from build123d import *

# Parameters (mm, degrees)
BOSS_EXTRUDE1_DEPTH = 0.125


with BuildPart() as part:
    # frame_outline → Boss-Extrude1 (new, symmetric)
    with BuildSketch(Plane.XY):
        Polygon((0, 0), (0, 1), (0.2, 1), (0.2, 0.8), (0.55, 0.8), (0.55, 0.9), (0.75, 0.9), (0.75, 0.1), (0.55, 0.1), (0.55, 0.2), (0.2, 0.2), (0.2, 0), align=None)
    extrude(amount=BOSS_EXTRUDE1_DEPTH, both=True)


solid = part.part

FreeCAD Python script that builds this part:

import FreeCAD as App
import Part
import Sketcher

V = App.Vector


def add_polygon(sketch, points):
    """Adds a closed chain of lines whose ends are joined by coincident constraints."""
    first, n = sketch.GeometryCount, len(points)
    for a, b in zip(points, points[1:] + points[:1]):
        sketch.addGeometry(Part.LineSegment(App.Vector(*a, 0), App.Vector(*b, 0)), False)
    for i in range(n):
        sketch.addConstraint(Sketcher.Constraint("Coincident", first + i, 2, first + (i + 1) % n, 1))

doc = App.newDocument("Part")
body = doc.addObject("PartDesign::Body", "Body")

sketch1 = body.newObject("Sketcher::SketchObject", "Sketch")
sketch1.AttachmentSupport = (doc.getObject("XY_Plane"), [""])
sketch1.MapMode = "FlatFace"
add_polygon(sketch1, [(0, 1), (0, 0), (0.2, 0), (0.2, 0.2), (0.55, 0.2), (0.55, 0.1), (0.75, 0.1), (0.75, 0.9), (0.55, 0.9), (0.55, 0.8), (0.2, 0.8), (0.2, 1)])
sketch1.addConstraint([
    Sketcher.Constraint("Vertical", 0),
    Sketcher.Constraint("Horizontal", 1),
    Sketcher.Constraint("Vertical", 2),
    Sketcher.Constraint("Horizontal", 3),
    Sketcher.Constraint("Vertical", 4),
    Sketcher.Constraint("Horizontal", 5),
    Sketcher.Constraint("Vertical", 6),
    Sketcher.Constraint("Horizontal", 7),
    Sketcher.Constraint("Vertical", 8),
    Sketcher.Constraint("Horizontal", 9),
    Sketcher.Constraint("Vertical", 10),
    Sketcher.Constraint("Horizontal", 11),
    Sketcher.Constraint("Coincident", 0, 2, -1, 1),
    Sketcher.Constraint("Vertical", 4, 2, 7, 2),
    Sketcher.Constraint("Vertical", 2, 2, 9, 2),
    Sketcher.Constraint("Equal", 1, 5),
    Sketcher.Constraint("Equal", 11, 2),
    Sketcher.Constraint("Equal", 4, 8),
    Sketcher.Constraint("Equal", 2, 10),
    Sketcher.Constraint("DistanceY", 0, 2, 0, 1, 1.0),
    Sketcher.Constraint("DistanceX", 1, 1, 1, 2, 0.2),
    Sketcher.Constraint("DistanceY", 4, 2, 4, 1, 0.1),
    Sketcher.Constraint("DistanceX", 3, 1, 3, 2, 0.35),
])
pad1 = body.newObject("PartDesign::Pad", "Pad")
pad1.Profile = sketch1
pad1.Length = 0.25
pad1.Midplane = True

doc.recompute()
